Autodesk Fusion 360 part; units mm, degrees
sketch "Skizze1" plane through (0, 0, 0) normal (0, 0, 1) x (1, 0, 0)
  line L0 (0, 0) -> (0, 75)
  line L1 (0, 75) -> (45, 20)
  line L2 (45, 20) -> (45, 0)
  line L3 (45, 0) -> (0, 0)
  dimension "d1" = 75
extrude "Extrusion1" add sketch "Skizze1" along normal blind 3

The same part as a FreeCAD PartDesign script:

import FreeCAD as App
import Part
import Sketcher
Q = App.Units.Quantity


def add_polygon(sketch, points):
    """Adds a closed chain of lines whose ends are joined by coincident constraints."""
    first, n = sketch.GeometryCount, len(points)
    for a, b in zip(points, points[1:] + points[:1]):
        sketch.addGeometry(Part.LineSegment(App.Vector(*a, 0), App.Vector(*b, 0)), False)
    for i in range(n):
        sketch.addConstraint(Sketcher.Constraint("Coincident", first + i, 2, first + (i + 1) % n, 1))

doc = App.newDocument("Part")
body = doc.addObject("PartDesign::Body", "Body")

# Sketch on XY plane
sketch1 = body.newObject("Sketcher::SketchObject", "Sketch")
sketch1.AttachmentSupport = (doc.getObject("XY_Plane"), [""])
sketch1.MapMode = "FlatFace"
add_polygon(sketch1, [(0, 75), (0, 0), (45, 0), (45, 20)])  # lines 0-3
sketch1.addConstraint([
    Sketcher.Constraint("Vertical", 0),
    Sketcher.Constraint("Horizontal", 1),
    Sketcher.Constraint("Vertical", 2),
    Sketcher.Constraint("Coincident", 0, 2, -1, 1),
    Sketcher.Constraint("DistanceY", 0, 2, 0, 1, Q("75 mm")),
    Sketcher.Constraint("DistanceX", 1, 1, 1, 2, Q("45 mm")),
    Sketcher.Constraint("DistanceY", 2, 1, 2, 2, Q("20 mm")),
])
pad1 = body.newObject("PartDesign::Pad", "Pad")
pad1.Profile = sketch1
pad1.Length = 3

doc.recompute()
